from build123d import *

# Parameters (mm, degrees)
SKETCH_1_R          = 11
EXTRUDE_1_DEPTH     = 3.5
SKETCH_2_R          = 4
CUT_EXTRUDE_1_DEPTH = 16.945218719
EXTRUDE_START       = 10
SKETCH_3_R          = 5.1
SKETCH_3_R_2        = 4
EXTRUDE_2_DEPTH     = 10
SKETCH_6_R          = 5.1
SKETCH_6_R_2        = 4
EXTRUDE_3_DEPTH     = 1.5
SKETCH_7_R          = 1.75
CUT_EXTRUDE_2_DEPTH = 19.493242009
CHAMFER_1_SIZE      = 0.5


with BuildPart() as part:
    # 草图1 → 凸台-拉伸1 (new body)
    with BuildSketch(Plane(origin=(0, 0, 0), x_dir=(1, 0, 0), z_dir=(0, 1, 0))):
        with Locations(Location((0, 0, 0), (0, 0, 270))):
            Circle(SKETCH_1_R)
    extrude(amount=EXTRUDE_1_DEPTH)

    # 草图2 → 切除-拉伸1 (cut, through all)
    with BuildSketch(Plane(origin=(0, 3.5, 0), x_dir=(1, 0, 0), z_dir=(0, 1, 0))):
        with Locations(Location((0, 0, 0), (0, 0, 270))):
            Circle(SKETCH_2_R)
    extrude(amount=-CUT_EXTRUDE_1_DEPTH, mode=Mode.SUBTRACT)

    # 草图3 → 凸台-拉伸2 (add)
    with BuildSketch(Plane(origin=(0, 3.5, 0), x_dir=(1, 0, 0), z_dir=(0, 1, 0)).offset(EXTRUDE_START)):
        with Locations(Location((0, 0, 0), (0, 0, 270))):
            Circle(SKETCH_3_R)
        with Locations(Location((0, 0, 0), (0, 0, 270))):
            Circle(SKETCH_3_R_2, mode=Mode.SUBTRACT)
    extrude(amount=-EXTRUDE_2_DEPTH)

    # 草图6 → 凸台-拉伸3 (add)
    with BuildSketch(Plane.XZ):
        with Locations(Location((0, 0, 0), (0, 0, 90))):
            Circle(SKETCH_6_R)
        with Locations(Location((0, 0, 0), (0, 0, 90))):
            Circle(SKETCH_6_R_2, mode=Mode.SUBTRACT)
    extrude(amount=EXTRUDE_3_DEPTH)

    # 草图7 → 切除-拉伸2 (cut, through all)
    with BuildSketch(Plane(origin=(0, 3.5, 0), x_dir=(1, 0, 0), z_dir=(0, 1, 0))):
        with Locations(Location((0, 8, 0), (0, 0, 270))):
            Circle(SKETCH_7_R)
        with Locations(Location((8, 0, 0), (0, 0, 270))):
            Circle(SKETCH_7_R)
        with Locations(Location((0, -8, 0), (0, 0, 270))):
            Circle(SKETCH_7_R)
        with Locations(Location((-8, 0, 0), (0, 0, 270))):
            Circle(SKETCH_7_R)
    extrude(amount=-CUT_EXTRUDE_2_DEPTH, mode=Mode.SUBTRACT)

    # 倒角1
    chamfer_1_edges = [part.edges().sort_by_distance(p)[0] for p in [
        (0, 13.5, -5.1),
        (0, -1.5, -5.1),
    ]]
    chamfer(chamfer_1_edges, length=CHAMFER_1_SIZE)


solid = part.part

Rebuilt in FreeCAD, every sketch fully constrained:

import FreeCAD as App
import Part
import Sketcher
from FreeCAD import Vector


def edges_at(feature, points):
    """Names of the edges that pass closest to the given points."""
    edges = feature.Shape.Edges
    near = lambda p: min(range(len(edges)), key=lambda i: edges[i].distToShape(Part.Vertex(*p))[0])
    return sorted({f"Edge{near(p) + 1}" for p in points})

doc = App.newDocument("Part")
body = doc.addObject("PartDesign::Body", "Body")

# Sketch on XZ plane
sketch1 = body.newObject("Sketcher::SketchObject", "Sketch")
sketch1.AttachmentSupport = (doc.getObject("XZ_Plane"), [""])
sketch1.MapMode = "FlatFace"
sketch1.addGeometry(Part.Circle(Vector(0, 0, 0), Vector(0, 0, 1), 11), False)
sketch1.addConstraint([
    Sketcher.Constraint("Coincident", 0, 3, -1, 1),
    Sketcher.Constraint("Diameter", 0, 22.0),
])
pad1 = body.newObject("PartDesign::Pad", "Pad")
pad1.Profile = sketch1
pad1.Length = 3.5
pad1.Reversed = True

# Sketch on XZ plane
sketch2 = body.newObject("Sketcher::SketchObject", "Sketch001")
sketch2.AttachmentSupport = (doc.getObject("XZ_Plane"), [""])
sketch2.MapMode = "FlatFace"
sketch2.AttachmentOffset = App.Placement(Vector(0, 0, -3.5), App.Rotation())
sketch2.addGeometry(Part.Circle(Vector(0, 0, 0), Vector(0, 0, 1), 4), False)
sketch2.addConstraint([
    Sketcher.Constraint("Coincident", 0, 3, -1, 1),
    Sketcher.Constraint("Diameter", 0, 8.0),
])
pocket1 = body.newObject("PartDesign::Pocket", "Pocket")
pocket1.Profile = sketch2
pocket1.Type = "ThroughAll"
pocket1.Reversed = True

# Sketch on XZ plane
sketch3 = body.newObject("Sketcher::SketchObject", "Sketch002")
sketch3.AttachmentSupport = (doc.getObject("XZ_Plane"), [""])
sketch3.MapMode = "FlatFace"
sketch3.AttachmentOffset = App.Placement(Vector(0, 0, -13.5), App.Rotation())
sketch3.addGeometry([
    Part.Circle(Vector(0, 0, 0), Vector(0, 0, 1), 5.1),
    Part.Circle(Vector(0, 0, 0), Vector(0, 0, 1), 4),
], False)
sketch3.addConstraint([
    Sketcher.Constraint("Coincident", 0, 3, -1, 1),
    Sketcher.Constraint("Coincident", 1, 3, -1, 1),
    Sketcher.Constraint("Diameter", 1, 8.0),
    Sketcher.Constraint("Diameter", 0, 10.2),
])
pad2 = body.newObject("PartDesign::Pad", "Pad001")
pad2.Profile = sketch3
pad2.Length = 10

# Sketch on XZ plane
sketch4 = body.newObject("Sketcher::SketchObject", "Sketch003")
sketch4.AttachmentSupport = (doc.getObject("XZ_Plane"), [""])
sketch4.MapMode = "FlatFace"
sketch4.addGeometry([
    Part.Circle(Vector(0, 0, 0), Vector(0, 0, 1), 5.1),
    Part.Circle(Vector(0, 0, 0), Vector(0, 0, 1), 4),
], False)
sketch4.addConstraint([
    Sketcher.Constraint("Coincident", 0, 3, -1, 1),
    Sketcher.Constraint("Coincident", 1, 3, -1, 1),
    Sketcher.Constraint("Diameter", 1, 8.0),
    Sketcher.Constraint("Diameter", 0, 10.2),
])
pad3 = body.newObject("PartDesign::Pad", "Pad002")
pad3.Profile = sketch4
pad3.Length = 1.5

# Sketch on XZ plane
sketch5 = body.newObject("Sketcher::SketchObject", "Sketch004")
sketch5.AttachmentSupport = (doc.getObject("XZ_Plane"), [""])
sketch5.MapMode = "FlatFace"
sketch5.AttachmentOffset = App.Placement(Vector(0, 0, -3.5), App.Rotation())
sketch5.addGeometry([
    Part.Circle(Vector(0, -8, 0), Vector(0, 0, 1), 1.8),
    Part.Circle(Vector(8, 0, 0), Vector(0, 0, 1), 1.8),
    Part.Circle(Vector(0, 8, 0), Vector(0, 0, 1), 1.8),
    Part.Circle(Vector(-8, 0, 0), Vector(0, 0, 1), 1.8),
], False)
sketch5.addConstraint([
    Sketcher.Constraint("Equal", 0, 1),
    Sketcher.Constraint("Equal", 1, 2),
    Sketcher.Constraint("Equal", 2, 3),
    Sketcher.Constraint("Symmetric", 0, 3, 2, 3, -1, 1),
    Sketcher.Constraint("Symmetric", 1, 3, 3, 3, -1, 1),
    Sketcher.Constraint("PointOnObject", 0, 3, -2),
    Sketcher.Constraint("PointOnObject", 1, 3, -1),
    Sketcher.Constraint("Diameter", 0, 3.5),
    Sketcher.Constraint("DistanceY", 0, 3, -1, 1, 8.0),
    Sketcher.Constraint("DistanceX", -1, 1, 1, 3, 8.0),
])
pocket2 = body.newObject("PartDesign::Pocket", "Pocket001")
pocket2.Profile = sketch5
pocket2.Type = "ThroughAll"
pocket2.Reversed = True
doc.recompute()

chamfer = body.newObject("PartDesign::Chamfer", "Chamfer")
chamfer.Base = (pocket2, edges_at(pocket2, [(0, 13.5, -5.1), (0, -1.5, -5.1)]))
chamfer.Size = 0.5

doc.recompute()
